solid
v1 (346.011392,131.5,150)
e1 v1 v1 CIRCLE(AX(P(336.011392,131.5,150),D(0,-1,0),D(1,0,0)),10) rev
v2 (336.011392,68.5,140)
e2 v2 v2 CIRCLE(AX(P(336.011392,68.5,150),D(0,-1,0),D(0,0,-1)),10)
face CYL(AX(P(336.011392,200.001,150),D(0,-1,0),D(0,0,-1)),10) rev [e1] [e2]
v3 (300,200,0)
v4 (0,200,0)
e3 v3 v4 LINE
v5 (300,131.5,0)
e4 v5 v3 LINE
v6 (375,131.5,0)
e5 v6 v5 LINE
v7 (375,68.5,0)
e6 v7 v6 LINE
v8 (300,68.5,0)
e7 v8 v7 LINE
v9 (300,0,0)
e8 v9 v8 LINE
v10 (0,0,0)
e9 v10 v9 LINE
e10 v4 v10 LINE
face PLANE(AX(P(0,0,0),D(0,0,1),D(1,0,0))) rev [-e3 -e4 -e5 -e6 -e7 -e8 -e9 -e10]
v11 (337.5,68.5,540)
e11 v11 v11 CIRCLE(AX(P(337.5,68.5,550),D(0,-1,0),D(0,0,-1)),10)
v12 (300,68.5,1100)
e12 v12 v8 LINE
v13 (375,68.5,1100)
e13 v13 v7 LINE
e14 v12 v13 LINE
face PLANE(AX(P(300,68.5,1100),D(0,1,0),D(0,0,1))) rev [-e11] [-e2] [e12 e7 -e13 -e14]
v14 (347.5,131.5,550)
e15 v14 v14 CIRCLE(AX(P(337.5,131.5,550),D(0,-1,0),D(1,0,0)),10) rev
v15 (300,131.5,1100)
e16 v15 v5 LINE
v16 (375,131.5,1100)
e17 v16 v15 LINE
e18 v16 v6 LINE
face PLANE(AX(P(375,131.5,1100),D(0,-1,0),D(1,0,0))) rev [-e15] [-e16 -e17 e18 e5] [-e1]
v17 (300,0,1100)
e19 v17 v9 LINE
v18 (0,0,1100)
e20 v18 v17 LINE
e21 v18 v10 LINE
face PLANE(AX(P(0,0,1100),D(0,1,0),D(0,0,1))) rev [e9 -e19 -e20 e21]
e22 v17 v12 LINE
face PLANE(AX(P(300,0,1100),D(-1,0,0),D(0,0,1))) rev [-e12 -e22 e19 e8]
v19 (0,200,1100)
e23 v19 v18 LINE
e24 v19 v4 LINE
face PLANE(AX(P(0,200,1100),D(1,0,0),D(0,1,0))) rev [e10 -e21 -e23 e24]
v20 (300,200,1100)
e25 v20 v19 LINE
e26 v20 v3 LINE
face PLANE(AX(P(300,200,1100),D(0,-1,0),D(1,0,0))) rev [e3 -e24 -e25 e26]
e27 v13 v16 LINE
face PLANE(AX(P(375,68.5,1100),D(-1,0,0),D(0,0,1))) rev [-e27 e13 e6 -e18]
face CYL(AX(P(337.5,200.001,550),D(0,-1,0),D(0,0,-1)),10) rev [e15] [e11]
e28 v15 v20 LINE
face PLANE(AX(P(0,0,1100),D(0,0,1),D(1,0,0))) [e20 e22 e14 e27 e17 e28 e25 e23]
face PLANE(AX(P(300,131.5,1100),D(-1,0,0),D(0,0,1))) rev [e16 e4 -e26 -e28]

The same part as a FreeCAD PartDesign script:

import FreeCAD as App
import Part
import Sketcher


def add_polygon(sketch, points):
    """Adds a closed chain of lines whose ends are joined by coincident constraints."""
    first, n = sketch.GeometryCount, len(points)
    for a, b in zip(points, points[1:] + points[:1]):
        sketch.addGeometry(Part.LineSegment(App.Vector(*a, 0), App.Vector(*b, 0)), False)
    for i in range(n):
        sketch.addConstraint(Sketcher.Constraint("Coincident", first + i, 2, first + (i + 1) % n, 1))

doc = App.newDocument("Part")
body = doc.addObject("PartDesign::Body", "Body")

# Sketch on XY plane
sketch1 = doc.addObject("Sketcher::SketchObject", "Sketch")
body.addObject(sketch1)
sketch1.AttachmentSupport = (doc.XY_Plane, [""])
sketch1.MapMode = "FlatFace"
add_polygon(sketch1, [(0, 0), (300, 0), (300, 68), (375, 68), (375, 132), (300, 132), (300, 200), (0, 200)])  # lines 0-7
sketch1.addConstraint(Sketcher.Constraint("Horizontal", 0))
sketch1.addConstraint(Sketcher.Constraint("Vertical", 1))
sketch1.addConstraint(Sketcher.Constraint("Horizontal", 2))
sketch1.addConstraint(Sketcher.Constraint("Vertical", 3))
sketch1.addConstraint(Sketcher.Constraint("Horizontal", 4))
sketch1.addConstraint(Sketcher.Constraint("Vertical", 5))
sketch1.addConstraint(Sketcher.Constraint("Horizontal", 6))
sketch1.addConstraint(Sketcher.Constraint("Vertical", 7))
sketch1.addConstraint(Sketcher.Constraint("Coincident", 7, 2, -1, 1))
sketch1.addConstraint(Sketcher.Constraint("Vertical", 1, 2, 4, 2))
sketch1.addConstraint(Sketcher.Constraint("Equal", 1, 5))
sketch1.addConstraint(Sketcher.Constraint("DistanceX", 0, 1, 0, 2, 300.0))
sketch1.addConstraint(Sketcher.Constraint("DistanceX", 2, 1, 2, 2, 75.0))
sketch1.addConstraint(Sketcher.Constraint("DistanceY", 3, 1, 3, 2, 63.0))
sketch1.addConstraint(Sketcher.Constraint("DistanceY", 7, 2, 7, 1, 200.0))
pad1 = doc.addObject("PartDesign::Pad", "Pad")
body.addObject(pad1)
pad1.Profile = sketch1
pad1.Length = 1100

# Sketch on XZ plane
sketch2 = doc.addObject("Sketcher::SketchObject", "Sketch001")
body.addObject(sketch2)
sketch2.AttachmentSupport = (doc.XZ_Plane, [""])
sketch2.MapMode = "FlatFace"
sketch2.AttachmentOffset = App.Placement(App.Vector(0, 0, -68.5), App.Rotation())
sketch2.addGeometry(Part.Circle(App.Vector(338, 550, 0), App.Vector(0, 0, 1), 10), False)
sketch2.addConstraint(Sketcher.Constraint("Diameter", 0, 20.0))
sketch2.addConstraint(Sketcher.Constraint("DistanceY", -1, 1, 0, 3, 550.0))
sketch2.addConstraint(Sketcher.Constraint("DistanceX", -1, 1, 0, 3, 337.5))
pocket1 = doc.addObject("PartDesign::Pocket", "Pocket")
body.addObject(pocket1)
pocket1.Profile = sketch2
pocket1.Type = "UpToFirst"

# Sketch on XZ plane
sketch3 = doc.addObject("Sketcher::SketchObject", "Sketch002")
body.addObject(sketch3)
sketch3.AttachmentSupport = (doc.XZ_Plane, [""])
sketch3.MapMode = "FlatFace"
sketch3.AttachmentOffset = App.Placement(App.Vector(0, 0, -68.5), App.Rotation())
sketch3.addGeometry(Part.Circle(App.Vector(336, 150, 0), App.Vector(0, 0, 1), 10), False)
sketch3.addConstraint(Sketcher.Constraint("Diameter", 0, 20.0))
sketch3.addConstraint(Sketcher.Constraint("DistanceY", -1, 1, 0, 3, 150.0))
sketch3.addConstraint(Sketcher.Constraint("DistanceX", -1, 1, 0, 3, 336.011392))
pocket2 = doc.addObject("PartDesign::Pocket", "Pocket001")
body.addObject(pocket2)
pocket2.Profile = sketch3
pocket2.Type = "UpToFirst"

doc.recompute()
